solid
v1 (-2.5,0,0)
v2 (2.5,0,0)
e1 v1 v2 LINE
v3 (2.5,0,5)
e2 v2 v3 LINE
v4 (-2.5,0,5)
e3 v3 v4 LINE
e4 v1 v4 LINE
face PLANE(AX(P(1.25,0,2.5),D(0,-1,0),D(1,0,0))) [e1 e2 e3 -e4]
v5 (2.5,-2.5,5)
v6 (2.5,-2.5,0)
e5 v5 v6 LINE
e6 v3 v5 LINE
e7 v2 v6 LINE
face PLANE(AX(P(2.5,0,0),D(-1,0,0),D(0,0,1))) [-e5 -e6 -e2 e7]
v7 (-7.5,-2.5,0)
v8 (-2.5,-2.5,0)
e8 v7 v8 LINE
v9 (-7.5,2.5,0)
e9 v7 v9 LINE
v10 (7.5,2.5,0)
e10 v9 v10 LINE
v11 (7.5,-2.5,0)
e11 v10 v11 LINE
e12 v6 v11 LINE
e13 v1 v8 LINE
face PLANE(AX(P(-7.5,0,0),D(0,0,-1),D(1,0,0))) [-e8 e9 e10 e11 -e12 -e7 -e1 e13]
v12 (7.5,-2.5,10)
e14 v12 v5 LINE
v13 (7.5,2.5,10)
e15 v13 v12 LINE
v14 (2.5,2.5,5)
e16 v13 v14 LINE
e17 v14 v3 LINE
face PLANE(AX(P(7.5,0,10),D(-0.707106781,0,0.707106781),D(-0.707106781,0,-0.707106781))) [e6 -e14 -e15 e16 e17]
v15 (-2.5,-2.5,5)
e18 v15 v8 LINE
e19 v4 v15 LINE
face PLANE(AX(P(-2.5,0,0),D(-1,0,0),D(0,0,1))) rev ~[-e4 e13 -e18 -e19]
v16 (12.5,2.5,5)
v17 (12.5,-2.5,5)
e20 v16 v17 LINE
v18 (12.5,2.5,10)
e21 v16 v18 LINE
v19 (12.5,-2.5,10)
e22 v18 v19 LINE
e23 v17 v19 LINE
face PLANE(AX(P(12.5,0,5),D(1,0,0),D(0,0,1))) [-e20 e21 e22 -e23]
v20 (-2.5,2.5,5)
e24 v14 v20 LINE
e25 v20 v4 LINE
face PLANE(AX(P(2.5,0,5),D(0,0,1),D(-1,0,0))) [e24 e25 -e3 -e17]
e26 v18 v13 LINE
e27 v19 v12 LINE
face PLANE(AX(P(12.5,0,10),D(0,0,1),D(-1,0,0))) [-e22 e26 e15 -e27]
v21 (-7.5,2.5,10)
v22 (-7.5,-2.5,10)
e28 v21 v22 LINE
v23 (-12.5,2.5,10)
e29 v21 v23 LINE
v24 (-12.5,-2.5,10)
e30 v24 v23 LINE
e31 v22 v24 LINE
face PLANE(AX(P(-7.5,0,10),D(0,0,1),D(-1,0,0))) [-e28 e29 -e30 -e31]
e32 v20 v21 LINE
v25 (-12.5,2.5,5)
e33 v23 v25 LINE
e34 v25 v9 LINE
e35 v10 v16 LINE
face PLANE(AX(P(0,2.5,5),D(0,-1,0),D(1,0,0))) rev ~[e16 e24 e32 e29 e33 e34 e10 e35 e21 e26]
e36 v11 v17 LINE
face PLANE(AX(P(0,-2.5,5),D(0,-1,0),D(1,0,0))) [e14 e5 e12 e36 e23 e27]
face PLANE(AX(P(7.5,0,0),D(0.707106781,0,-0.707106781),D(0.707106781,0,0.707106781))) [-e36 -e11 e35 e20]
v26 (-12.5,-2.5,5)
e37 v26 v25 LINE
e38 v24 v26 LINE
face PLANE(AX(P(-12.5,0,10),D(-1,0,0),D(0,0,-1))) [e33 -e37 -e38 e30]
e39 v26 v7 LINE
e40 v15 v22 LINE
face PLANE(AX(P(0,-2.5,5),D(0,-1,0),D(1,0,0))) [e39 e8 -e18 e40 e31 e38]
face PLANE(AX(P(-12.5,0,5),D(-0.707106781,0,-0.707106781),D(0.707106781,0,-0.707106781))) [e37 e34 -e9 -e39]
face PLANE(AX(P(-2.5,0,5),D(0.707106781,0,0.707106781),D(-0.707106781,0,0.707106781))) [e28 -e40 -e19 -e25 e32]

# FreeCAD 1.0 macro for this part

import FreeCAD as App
import Part
import Sketcher
from FreeCAD import Vector
Q = App.Units.Quantity


def add_polygon(sketch, points):
    """Adds a closed chain of lines whose ends are joined by coincident constraints."""
    first, n = sketch.GeometryCount, len(points)
    for a, b in zip(points, points[1:] + points[:1]):
        sketch.addGeometry(Part.LineSegment(App.Vector(*a, 0), App.Vector(*b, 0)), False)
    for i in range(n):
        sketch.addConstraint(Sketcher.Constraint("Coincident", first + i, 2, first + (i + 1) % n, 1))

doc = App.newDocument("Part")
body = doc.addObject("PartDesign::Body", "Body")

sketch1 = body.newObject("Sketcher::SketchObject", "Sketch")
sketch1.AttachmentSupport = (doc.getObject("XZ_Plane"), [""])
sketch1.MapMode = "FlatFace"
add_polygon(sketch1, [(-8, 0), (8, 0), (12, 5), (12, 10), (8, 10), (2, 5), (-2, 5), (-8, 10), (-12, 10), (-12, 5)])
sketch1.addConstraint([
    Sketcher.Constraint("Horizontal", 0),
    Sketcher.Constraint("Vertical", 2),
    Sketcher.Constraint("Horizontal", 3),
    Sketcher.Constraint("Horizontal", 5),
    Sketcher.Constraint("Horizontal", 7),
    Sketcher.Constraint("Vertical", 8),
    Sketcher.Constraint("Symmetric", 0, 2, 9, 2, -1, 1),
    Sketcher.Constraint("Symmetric", 3, 2, 6, 2, -2),
    Sketcher.Constraint("Symmetric", 1, 2, 8, 2, -2),
    Sketcher.Constraint("Parallel", 1, 4),
    Sketcher.Constraint("Perpendicular", 4, 6),
    Sketcher.Constraint("Parallel", 6, 9),
    Sketcher.Constraint("Horizontal", 1, 2, 4, 2),
    Sketcher.Constraint("Vertical", 0, 2, 3, 2),
    Sketcher.Constraint("Equal", 3, 5),
    Sketcher.Constraint("Equal", 7, 2),
    Sketcher.Constraint("DistanceX", 0, 1, 0, 2, Q("15 mm")),
])
pad1 = body.newObject("PartDesign::Pad", "Pad")
pad1.Profile = sketch1
pad1.Length = 5
pad1.Midplane = True

sketch2 = body.newObject("Sketcher::SketchObject", "Sketch001")
sketch2.AttachmentSupport = (doc.getObject("XZ_Plane"), [""])
sketch2.MapMode = "FlatFace"
add_polygon(sketch2, [(2, 0), (2, 5), (-2, 5), (-2, 0)])
sketch2.addConstraint([
    Sketcher.Constraint("Vertical", 0),
    Sketcher.Constraint("Horizontal", 1),
    Sketcher.Constraint("Vertical", 2),
    Sketcher.Constraint("Horizontal", 3),
    Sketcher.Constraint("Symmetric", 2, 2, 3, 2, -1, 1),
    Sketcher.Constraint("Equal", 3, 0),
    Sketcher.Constraint("DistanceX", 1, 2, 1, 1, Q("5 mm")),
])
pocket1 = body.newObject("PartDesign::Pocket", "Pocket")
pocket1.Profile = sketch2
pocket1.Length = 10
pocket1.Reversed = True

doc.recompute()
